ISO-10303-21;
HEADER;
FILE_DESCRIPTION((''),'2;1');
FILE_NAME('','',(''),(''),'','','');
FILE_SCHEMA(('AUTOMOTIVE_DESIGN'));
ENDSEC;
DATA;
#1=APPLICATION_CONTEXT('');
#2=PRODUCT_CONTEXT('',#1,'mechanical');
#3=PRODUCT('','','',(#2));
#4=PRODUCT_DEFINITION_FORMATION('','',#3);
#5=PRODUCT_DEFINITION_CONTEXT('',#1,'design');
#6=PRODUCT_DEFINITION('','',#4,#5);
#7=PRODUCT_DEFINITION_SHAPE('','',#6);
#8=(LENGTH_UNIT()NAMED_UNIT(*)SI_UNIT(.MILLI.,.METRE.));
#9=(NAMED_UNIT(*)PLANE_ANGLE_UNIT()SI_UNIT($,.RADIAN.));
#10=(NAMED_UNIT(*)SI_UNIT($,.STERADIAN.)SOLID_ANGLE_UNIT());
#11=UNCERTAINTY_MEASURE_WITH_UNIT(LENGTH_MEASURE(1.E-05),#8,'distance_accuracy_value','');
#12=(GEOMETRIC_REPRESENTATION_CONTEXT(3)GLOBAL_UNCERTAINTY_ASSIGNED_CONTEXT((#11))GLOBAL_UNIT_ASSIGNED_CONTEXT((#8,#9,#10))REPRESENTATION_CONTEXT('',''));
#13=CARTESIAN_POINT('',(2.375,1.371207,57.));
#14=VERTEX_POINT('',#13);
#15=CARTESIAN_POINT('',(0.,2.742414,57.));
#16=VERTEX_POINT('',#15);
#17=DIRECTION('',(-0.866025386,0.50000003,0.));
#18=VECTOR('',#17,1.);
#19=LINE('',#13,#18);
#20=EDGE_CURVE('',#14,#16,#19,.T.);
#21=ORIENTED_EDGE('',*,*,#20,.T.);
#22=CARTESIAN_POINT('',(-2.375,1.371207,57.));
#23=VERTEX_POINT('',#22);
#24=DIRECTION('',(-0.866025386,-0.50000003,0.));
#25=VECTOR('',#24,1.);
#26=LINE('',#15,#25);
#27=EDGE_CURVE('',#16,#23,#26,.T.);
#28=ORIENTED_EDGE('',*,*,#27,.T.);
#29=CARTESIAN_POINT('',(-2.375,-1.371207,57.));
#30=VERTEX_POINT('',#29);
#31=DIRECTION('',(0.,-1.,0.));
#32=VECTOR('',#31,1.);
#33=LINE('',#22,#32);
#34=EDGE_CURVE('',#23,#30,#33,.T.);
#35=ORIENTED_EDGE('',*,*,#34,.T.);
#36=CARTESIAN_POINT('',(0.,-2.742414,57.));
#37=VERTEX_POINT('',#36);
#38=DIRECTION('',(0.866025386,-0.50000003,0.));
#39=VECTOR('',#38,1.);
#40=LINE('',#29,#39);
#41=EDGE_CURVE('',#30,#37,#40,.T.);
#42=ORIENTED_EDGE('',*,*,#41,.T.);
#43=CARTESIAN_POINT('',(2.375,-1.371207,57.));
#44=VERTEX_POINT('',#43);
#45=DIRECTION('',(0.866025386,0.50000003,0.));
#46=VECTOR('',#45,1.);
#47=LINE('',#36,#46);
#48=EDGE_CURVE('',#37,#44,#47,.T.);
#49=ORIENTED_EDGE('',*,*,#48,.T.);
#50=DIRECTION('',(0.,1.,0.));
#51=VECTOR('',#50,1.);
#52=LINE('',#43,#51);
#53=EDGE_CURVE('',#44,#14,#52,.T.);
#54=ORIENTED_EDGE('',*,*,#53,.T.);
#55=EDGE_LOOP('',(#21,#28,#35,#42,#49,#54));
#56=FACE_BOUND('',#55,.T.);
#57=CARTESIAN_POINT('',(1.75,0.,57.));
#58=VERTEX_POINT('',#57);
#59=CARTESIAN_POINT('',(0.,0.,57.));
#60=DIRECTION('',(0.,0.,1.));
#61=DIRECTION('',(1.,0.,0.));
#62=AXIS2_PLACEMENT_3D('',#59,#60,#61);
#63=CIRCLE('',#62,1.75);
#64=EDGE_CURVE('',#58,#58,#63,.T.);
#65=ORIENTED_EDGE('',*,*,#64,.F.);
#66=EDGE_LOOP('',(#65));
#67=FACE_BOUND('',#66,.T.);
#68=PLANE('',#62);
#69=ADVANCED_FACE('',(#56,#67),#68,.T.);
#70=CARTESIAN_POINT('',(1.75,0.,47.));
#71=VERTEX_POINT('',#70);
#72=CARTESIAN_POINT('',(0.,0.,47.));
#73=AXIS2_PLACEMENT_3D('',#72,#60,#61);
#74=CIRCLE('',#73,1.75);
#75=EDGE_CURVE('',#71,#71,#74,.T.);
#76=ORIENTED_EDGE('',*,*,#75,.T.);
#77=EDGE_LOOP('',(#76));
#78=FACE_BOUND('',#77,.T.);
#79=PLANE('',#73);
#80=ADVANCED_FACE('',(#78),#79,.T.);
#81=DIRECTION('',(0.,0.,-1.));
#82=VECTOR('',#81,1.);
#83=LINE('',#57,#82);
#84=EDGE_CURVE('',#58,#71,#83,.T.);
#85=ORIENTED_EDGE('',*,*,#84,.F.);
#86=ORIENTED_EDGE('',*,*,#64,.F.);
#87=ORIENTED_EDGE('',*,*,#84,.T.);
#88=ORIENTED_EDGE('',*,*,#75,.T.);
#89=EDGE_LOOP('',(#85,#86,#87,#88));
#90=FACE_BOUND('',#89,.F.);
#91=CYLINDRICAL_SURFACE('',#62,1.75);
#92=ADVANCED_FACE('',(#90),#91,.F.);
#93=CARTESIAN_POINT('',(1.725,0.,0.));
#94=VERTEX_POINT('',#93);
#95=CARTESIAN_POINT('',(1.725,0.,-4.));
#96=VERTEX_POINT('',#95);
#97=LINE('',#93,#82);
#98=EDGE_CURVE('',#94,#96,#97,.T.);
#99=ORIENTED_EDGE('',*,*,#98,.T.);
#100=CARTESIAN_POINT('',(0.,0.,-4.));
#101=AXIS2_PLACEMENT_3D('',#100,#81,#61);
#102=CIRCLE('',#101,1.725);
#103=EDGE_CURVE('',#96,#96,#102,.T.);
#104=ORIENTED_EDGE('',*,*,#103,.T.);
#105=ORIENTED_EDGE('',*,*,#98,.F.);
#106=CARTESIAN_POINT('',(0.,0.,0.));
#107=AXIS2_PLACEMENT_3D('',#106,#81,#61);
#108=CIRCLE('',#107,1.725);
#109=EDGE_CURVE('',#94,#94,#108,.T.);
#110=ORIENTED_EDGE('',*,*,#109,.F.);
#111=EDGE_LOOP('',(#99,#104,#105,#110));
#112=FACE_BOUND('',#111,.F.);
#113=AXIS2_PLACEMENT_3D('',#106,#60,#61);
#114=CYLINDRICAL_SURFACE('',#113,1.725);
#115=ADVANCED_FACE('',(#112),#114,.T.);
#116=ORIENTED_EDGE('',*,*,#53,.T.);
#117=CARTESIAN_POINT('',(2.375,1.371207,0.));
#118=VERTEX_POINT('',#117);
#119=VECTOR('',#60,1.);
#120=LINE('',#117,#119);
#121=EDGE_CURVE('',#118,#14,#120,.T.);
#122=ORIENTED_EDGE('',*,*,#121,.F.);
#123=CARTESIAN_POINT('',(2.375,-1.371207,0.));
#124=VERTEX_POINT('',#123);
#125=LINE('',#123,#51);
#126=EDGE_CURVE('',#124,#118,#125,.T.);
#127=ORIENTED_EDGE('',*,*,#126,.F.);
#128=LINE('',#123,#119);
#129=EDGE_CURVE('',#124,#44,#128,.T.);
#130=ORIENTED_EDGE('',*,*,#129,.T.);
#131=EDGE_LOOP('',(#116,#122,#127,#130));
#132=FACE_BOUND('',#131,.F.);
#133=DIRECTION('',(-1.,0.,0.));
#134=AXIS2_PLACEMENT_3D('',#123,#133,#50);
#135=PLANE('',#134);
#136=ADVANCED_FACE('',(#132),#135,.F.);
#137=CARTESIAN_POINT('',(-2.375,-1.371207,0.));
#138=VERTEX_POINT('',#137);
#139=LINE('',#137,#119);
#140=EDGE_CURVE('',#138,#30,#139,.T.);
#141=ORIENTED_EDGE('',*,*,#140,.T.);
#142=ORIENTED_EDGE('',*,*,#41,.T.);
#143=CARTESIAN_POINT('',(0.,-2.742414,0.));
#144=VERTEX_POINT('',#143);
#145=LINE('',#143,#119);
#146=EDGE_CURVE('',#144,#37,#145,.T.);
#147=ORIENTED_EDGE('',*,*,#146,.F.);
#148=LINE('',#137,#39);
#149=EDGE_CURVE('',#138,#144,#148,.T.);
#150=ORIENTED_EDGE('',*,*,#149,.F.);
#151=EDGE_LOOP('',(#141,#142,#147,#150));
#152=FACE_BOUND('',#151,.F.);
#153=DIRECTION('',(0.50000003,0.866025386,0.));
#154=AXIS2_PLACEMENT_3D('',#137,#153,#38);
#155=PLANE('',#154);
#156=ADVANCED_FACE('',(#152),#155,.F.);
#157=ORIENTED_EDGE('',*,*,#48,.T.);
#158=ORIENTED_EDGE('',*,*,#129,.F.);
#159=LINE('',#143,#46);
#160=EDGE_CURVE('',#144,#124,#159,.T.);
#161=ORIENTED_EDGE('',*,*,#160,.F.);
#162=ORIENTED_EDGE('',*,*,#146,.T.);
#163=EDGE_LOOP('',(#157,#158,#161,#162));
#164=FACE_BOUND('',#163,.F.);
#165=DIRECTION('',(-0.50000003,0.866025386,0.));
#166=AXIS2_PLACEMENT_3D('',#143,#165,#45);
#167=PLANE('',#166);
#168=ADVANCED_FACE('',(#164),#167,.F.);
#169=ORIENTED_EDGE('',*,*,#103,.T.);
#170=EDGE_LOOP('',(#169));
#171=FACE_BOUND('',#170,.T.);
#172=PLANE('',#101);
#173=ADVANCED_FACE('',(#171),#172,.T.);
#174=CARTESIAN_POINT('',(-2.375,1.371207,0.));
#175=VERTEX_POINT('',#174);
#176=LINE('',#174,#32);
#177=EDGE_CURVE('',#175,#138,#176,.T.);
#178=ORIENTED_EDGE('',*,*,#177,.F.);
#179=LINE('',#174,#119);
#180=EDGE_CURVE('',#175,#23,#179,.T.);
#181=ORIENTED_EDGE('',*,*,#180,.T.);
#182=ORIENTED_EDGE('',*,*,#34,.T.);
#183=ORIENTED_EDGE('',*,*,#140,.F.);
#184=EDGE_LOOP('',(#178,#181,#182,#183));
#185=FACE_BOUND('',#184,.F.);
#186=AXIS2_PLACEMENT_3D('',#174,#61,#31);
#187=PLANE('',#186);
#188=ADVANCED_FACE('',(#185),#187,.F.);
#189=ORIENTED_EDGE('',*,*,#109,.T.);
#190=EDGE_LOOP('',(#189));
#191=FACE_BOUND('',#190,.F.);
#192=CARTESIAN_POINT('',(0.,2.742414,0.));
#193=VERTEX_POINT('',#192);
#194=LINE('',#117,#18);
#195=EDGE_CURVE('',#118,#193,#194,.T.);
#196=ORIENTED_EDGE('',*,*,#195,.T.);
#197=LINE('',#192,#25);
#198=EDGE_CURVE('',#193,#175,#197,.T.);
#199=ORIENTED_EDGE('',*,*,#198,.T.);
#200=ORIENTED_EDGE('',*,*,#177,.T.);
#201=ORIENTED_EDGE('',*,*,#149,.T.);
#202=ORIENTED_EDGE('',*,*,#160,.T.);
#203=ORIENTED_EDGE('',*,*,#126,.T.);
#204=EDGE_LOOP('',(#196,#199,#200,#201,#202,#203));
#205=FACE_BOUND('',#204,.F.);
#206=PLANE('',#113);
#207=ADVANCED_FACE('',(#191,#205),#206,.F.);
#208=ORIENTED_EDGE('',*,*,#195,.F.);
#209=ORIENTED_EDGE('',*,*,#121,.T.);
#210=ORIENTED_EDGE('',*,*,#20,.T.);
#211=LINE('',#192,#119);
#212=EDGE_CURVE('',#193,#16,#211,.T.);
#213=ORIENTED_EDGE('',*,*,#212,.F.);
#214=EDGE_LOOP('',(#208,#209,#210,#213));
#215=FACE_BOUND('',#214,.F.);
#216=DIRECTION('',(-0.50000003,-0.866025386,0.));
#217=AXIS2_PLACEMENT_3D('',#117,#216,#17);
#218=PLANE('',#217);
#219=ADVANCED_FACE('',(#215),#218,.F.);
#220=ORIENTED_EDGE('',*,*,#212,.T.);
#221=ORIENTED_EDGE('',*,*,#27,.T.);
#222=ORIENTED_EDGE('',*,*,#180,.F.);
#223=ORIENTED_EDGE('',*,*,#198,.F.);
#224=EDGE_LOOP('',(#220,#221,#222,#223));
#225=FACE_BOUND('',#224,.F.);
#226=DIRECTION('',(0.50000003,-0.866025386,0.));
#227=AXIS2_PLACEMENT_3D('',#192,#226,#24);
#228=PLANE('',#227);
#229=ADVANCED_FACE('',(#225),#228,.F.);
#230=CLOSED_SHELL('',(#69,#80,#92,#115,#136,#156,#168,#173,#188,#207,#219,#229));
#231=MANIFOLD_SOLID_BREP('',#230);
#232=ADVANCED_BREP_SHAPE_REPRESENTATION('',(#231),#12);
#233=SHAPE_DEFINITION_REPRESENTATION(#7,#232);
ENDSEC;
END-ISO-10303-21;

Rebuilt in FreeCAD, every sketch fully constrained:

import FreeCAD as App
import Part
import Sketcher
from FreeCAD import Vector
Q = App.Units.Quantity

doc = App.newDocument("Part")
params = doc.addObject("Spreadsheet::Sheet", "Params")
for row, (alias, value) in enumerate([
    ("pad1_length", "57 mm"),
    ("sketch2_diameter", "3.5 mm"),
    ("pocket1_length", "10 mm"),
    ("sketch3_diameter", "3.45 mm"),
    ("pad2_length", "4 mm"),
], start=1):
    params.set(f"A{row}", alias)
    params.set(f"B{row}", "=" + value)
    params.setAlias(f"B{row}", alias)

body = doc.addObject("PartDesign::Body", "Body")

sketch1 = doc.addObject("Sketcher::SketchObject", "Sketch")
body.addObject(sketch1)
sketch1.AttachmentSupport = (doc.XY_Plane, [""])
sketch1.MapMode = "FlatFace"
sketch1.addGeometry(Part.LineSegment(Vector(2.375, 1.371207, 0), Vector(0, 2.742414, 0)), False)
sketch1.addGeometry(Part.LineSegment(Vector(0, 2.742414, 0), Vector(-2.375, 1.371207, 0)), False)
sketch1.addGeometry(Part.LineSegment(Vector(-2.375, 1.371207, 0), Vector(-2.375, -1.371207, 0)), False)
sketch1.addGeometry(Part.LineSegment(Vector(-2.375, -1.371207, 0), Vector(0, -2.742414, 0)), False)
sketch1.addGeometry(Part.LineSegment(Vector(0, -2.742414, 0), Vector(2.375, -1.371207, 0)), False)
sketch1.addGeometry(Part.LineSegment(Vector(2.375, -1.371207, 0), Vector(2.375, 1.371207, 0)), False)
sketch1.addConstraint(Sketcher.Constraint("Coincident", 0, 2, 1, 1))
sketch1.addConstraint(Sketcher.Constraint("Coincident", 1, 2, 2, 1))
sketch1.addConstraint(Sketcher.Constraint("Coincident", 2, 2, 3, 1))
sketch1.addConstraint(Sketcher.Constraint("Coincident", 3, 2, 4, 1))
sketch1.addConstraint(Sketcher.Constraint("Coincident", 4, 2, 5, 1))
sketch1.addConstraint(Sketcher.Constraint("Coincident", 5, 2, 0, 1))
sketch1.addConstraint(Sketcher.Constraint("Vertical", 2))
sketch1.addConstraint(Sketcher.Constraint("Vertical", 5))
sketch1.addConstraint(Sketcher.Constraint("Symmetric", 0, 2, 3, 2, -1, 1))
sketch1.addConstraint(Sketcher.Constraint("Symmetric", 1, 2, 4, 2, -1, 1))
sketch1.addConstraint(Sketcher.Constraint("PointOnObject", 0, 2, -2))
sketch1.addConstraint(Sketcher.Constraint("Parallel", 0, 3))
sketch1.addConstraint(Sketcher.Constraint("Horizontal", 2, 2, 4, 2))
sketch1.addConstraint(Sketcher.Constraint("Angle", 0, Q("149.999998 deg")))
sketch1.addConstraint(Sketcher.Constraint("DistanceX", 2, 2, 4, 2, 4.75))
sketch1.addConstraint(Sketcher.Constraint("DistanceY", 2, 2, 2, 1, 2.742414))
pad1 = doc.addObject("PartDesign::Pad", "Pad")
body.addObject(pad1)
pad1.Profile = sketch1
pad1.setExpression("Length", "Params.pad1_length")

sketch2 = doc.addObject("Sketcher::SketchObject", "Sketch001")
body.addObject(sketch2)
sketch2.AttachmentSupport = (doc.XY_Plane, [""])
sketch2.MapMode = "FlatFace"
sketch2.AttachmentOffset = App.Placement(Vector(0, 0, 57), App.Rotation())
sketch2.addGeometry(Part.Circle(Vector(0, 0, 0), Vector(0, 0, 1), 1.75), False)
sketch2.addConstraint(Sketcher.Constraint("Coincident", 0, 3, -1, 1))
sketch2.addConstraint(Sketcher.Constraint("Diameter", 0, 3.5))
sketch2.setExpression("Constraints[1]", "Params.sketch2_diameter")
pocket1 = doc.addObject("PartDesign::Pocket", "Pocket")
body.addObject(pocket1)
pocket1.Profile = sketch2
pocket1.setExpression("Length", "Params.pocket1_length")

sketch3 = doc.addObject("Sketcher::SketchObject", "Sketch002")
body.addObject(sketch3)
sketch3.AttachmentSupport = (doc.XY_Plane, [""])
sketch3.MapMode = "FlatFace"
sketch3.addGeometry(Part.Circle(Vector(0, 0, 0), Vector(0, 0, 1), 1.725), False)
sketch3.addConstraint(Sketcher.Constraint("Coincident", 0, 3, -1, 1))
sketch3.addConstraint(Sketcher.Constraint("Diameter", 0, 3.45))
sketch3.setExpression("Constraints[1]", "Params.sketch3_diameter")
pad2 = doc.addObject("PartDesign::Pad", "Pad001")
body.addObject(pad2)
pad2.Profile = sketch3
pad2.setExpression("Length", "Params.pad2_length")
pad2.Reversed = True

doc.recompute()
